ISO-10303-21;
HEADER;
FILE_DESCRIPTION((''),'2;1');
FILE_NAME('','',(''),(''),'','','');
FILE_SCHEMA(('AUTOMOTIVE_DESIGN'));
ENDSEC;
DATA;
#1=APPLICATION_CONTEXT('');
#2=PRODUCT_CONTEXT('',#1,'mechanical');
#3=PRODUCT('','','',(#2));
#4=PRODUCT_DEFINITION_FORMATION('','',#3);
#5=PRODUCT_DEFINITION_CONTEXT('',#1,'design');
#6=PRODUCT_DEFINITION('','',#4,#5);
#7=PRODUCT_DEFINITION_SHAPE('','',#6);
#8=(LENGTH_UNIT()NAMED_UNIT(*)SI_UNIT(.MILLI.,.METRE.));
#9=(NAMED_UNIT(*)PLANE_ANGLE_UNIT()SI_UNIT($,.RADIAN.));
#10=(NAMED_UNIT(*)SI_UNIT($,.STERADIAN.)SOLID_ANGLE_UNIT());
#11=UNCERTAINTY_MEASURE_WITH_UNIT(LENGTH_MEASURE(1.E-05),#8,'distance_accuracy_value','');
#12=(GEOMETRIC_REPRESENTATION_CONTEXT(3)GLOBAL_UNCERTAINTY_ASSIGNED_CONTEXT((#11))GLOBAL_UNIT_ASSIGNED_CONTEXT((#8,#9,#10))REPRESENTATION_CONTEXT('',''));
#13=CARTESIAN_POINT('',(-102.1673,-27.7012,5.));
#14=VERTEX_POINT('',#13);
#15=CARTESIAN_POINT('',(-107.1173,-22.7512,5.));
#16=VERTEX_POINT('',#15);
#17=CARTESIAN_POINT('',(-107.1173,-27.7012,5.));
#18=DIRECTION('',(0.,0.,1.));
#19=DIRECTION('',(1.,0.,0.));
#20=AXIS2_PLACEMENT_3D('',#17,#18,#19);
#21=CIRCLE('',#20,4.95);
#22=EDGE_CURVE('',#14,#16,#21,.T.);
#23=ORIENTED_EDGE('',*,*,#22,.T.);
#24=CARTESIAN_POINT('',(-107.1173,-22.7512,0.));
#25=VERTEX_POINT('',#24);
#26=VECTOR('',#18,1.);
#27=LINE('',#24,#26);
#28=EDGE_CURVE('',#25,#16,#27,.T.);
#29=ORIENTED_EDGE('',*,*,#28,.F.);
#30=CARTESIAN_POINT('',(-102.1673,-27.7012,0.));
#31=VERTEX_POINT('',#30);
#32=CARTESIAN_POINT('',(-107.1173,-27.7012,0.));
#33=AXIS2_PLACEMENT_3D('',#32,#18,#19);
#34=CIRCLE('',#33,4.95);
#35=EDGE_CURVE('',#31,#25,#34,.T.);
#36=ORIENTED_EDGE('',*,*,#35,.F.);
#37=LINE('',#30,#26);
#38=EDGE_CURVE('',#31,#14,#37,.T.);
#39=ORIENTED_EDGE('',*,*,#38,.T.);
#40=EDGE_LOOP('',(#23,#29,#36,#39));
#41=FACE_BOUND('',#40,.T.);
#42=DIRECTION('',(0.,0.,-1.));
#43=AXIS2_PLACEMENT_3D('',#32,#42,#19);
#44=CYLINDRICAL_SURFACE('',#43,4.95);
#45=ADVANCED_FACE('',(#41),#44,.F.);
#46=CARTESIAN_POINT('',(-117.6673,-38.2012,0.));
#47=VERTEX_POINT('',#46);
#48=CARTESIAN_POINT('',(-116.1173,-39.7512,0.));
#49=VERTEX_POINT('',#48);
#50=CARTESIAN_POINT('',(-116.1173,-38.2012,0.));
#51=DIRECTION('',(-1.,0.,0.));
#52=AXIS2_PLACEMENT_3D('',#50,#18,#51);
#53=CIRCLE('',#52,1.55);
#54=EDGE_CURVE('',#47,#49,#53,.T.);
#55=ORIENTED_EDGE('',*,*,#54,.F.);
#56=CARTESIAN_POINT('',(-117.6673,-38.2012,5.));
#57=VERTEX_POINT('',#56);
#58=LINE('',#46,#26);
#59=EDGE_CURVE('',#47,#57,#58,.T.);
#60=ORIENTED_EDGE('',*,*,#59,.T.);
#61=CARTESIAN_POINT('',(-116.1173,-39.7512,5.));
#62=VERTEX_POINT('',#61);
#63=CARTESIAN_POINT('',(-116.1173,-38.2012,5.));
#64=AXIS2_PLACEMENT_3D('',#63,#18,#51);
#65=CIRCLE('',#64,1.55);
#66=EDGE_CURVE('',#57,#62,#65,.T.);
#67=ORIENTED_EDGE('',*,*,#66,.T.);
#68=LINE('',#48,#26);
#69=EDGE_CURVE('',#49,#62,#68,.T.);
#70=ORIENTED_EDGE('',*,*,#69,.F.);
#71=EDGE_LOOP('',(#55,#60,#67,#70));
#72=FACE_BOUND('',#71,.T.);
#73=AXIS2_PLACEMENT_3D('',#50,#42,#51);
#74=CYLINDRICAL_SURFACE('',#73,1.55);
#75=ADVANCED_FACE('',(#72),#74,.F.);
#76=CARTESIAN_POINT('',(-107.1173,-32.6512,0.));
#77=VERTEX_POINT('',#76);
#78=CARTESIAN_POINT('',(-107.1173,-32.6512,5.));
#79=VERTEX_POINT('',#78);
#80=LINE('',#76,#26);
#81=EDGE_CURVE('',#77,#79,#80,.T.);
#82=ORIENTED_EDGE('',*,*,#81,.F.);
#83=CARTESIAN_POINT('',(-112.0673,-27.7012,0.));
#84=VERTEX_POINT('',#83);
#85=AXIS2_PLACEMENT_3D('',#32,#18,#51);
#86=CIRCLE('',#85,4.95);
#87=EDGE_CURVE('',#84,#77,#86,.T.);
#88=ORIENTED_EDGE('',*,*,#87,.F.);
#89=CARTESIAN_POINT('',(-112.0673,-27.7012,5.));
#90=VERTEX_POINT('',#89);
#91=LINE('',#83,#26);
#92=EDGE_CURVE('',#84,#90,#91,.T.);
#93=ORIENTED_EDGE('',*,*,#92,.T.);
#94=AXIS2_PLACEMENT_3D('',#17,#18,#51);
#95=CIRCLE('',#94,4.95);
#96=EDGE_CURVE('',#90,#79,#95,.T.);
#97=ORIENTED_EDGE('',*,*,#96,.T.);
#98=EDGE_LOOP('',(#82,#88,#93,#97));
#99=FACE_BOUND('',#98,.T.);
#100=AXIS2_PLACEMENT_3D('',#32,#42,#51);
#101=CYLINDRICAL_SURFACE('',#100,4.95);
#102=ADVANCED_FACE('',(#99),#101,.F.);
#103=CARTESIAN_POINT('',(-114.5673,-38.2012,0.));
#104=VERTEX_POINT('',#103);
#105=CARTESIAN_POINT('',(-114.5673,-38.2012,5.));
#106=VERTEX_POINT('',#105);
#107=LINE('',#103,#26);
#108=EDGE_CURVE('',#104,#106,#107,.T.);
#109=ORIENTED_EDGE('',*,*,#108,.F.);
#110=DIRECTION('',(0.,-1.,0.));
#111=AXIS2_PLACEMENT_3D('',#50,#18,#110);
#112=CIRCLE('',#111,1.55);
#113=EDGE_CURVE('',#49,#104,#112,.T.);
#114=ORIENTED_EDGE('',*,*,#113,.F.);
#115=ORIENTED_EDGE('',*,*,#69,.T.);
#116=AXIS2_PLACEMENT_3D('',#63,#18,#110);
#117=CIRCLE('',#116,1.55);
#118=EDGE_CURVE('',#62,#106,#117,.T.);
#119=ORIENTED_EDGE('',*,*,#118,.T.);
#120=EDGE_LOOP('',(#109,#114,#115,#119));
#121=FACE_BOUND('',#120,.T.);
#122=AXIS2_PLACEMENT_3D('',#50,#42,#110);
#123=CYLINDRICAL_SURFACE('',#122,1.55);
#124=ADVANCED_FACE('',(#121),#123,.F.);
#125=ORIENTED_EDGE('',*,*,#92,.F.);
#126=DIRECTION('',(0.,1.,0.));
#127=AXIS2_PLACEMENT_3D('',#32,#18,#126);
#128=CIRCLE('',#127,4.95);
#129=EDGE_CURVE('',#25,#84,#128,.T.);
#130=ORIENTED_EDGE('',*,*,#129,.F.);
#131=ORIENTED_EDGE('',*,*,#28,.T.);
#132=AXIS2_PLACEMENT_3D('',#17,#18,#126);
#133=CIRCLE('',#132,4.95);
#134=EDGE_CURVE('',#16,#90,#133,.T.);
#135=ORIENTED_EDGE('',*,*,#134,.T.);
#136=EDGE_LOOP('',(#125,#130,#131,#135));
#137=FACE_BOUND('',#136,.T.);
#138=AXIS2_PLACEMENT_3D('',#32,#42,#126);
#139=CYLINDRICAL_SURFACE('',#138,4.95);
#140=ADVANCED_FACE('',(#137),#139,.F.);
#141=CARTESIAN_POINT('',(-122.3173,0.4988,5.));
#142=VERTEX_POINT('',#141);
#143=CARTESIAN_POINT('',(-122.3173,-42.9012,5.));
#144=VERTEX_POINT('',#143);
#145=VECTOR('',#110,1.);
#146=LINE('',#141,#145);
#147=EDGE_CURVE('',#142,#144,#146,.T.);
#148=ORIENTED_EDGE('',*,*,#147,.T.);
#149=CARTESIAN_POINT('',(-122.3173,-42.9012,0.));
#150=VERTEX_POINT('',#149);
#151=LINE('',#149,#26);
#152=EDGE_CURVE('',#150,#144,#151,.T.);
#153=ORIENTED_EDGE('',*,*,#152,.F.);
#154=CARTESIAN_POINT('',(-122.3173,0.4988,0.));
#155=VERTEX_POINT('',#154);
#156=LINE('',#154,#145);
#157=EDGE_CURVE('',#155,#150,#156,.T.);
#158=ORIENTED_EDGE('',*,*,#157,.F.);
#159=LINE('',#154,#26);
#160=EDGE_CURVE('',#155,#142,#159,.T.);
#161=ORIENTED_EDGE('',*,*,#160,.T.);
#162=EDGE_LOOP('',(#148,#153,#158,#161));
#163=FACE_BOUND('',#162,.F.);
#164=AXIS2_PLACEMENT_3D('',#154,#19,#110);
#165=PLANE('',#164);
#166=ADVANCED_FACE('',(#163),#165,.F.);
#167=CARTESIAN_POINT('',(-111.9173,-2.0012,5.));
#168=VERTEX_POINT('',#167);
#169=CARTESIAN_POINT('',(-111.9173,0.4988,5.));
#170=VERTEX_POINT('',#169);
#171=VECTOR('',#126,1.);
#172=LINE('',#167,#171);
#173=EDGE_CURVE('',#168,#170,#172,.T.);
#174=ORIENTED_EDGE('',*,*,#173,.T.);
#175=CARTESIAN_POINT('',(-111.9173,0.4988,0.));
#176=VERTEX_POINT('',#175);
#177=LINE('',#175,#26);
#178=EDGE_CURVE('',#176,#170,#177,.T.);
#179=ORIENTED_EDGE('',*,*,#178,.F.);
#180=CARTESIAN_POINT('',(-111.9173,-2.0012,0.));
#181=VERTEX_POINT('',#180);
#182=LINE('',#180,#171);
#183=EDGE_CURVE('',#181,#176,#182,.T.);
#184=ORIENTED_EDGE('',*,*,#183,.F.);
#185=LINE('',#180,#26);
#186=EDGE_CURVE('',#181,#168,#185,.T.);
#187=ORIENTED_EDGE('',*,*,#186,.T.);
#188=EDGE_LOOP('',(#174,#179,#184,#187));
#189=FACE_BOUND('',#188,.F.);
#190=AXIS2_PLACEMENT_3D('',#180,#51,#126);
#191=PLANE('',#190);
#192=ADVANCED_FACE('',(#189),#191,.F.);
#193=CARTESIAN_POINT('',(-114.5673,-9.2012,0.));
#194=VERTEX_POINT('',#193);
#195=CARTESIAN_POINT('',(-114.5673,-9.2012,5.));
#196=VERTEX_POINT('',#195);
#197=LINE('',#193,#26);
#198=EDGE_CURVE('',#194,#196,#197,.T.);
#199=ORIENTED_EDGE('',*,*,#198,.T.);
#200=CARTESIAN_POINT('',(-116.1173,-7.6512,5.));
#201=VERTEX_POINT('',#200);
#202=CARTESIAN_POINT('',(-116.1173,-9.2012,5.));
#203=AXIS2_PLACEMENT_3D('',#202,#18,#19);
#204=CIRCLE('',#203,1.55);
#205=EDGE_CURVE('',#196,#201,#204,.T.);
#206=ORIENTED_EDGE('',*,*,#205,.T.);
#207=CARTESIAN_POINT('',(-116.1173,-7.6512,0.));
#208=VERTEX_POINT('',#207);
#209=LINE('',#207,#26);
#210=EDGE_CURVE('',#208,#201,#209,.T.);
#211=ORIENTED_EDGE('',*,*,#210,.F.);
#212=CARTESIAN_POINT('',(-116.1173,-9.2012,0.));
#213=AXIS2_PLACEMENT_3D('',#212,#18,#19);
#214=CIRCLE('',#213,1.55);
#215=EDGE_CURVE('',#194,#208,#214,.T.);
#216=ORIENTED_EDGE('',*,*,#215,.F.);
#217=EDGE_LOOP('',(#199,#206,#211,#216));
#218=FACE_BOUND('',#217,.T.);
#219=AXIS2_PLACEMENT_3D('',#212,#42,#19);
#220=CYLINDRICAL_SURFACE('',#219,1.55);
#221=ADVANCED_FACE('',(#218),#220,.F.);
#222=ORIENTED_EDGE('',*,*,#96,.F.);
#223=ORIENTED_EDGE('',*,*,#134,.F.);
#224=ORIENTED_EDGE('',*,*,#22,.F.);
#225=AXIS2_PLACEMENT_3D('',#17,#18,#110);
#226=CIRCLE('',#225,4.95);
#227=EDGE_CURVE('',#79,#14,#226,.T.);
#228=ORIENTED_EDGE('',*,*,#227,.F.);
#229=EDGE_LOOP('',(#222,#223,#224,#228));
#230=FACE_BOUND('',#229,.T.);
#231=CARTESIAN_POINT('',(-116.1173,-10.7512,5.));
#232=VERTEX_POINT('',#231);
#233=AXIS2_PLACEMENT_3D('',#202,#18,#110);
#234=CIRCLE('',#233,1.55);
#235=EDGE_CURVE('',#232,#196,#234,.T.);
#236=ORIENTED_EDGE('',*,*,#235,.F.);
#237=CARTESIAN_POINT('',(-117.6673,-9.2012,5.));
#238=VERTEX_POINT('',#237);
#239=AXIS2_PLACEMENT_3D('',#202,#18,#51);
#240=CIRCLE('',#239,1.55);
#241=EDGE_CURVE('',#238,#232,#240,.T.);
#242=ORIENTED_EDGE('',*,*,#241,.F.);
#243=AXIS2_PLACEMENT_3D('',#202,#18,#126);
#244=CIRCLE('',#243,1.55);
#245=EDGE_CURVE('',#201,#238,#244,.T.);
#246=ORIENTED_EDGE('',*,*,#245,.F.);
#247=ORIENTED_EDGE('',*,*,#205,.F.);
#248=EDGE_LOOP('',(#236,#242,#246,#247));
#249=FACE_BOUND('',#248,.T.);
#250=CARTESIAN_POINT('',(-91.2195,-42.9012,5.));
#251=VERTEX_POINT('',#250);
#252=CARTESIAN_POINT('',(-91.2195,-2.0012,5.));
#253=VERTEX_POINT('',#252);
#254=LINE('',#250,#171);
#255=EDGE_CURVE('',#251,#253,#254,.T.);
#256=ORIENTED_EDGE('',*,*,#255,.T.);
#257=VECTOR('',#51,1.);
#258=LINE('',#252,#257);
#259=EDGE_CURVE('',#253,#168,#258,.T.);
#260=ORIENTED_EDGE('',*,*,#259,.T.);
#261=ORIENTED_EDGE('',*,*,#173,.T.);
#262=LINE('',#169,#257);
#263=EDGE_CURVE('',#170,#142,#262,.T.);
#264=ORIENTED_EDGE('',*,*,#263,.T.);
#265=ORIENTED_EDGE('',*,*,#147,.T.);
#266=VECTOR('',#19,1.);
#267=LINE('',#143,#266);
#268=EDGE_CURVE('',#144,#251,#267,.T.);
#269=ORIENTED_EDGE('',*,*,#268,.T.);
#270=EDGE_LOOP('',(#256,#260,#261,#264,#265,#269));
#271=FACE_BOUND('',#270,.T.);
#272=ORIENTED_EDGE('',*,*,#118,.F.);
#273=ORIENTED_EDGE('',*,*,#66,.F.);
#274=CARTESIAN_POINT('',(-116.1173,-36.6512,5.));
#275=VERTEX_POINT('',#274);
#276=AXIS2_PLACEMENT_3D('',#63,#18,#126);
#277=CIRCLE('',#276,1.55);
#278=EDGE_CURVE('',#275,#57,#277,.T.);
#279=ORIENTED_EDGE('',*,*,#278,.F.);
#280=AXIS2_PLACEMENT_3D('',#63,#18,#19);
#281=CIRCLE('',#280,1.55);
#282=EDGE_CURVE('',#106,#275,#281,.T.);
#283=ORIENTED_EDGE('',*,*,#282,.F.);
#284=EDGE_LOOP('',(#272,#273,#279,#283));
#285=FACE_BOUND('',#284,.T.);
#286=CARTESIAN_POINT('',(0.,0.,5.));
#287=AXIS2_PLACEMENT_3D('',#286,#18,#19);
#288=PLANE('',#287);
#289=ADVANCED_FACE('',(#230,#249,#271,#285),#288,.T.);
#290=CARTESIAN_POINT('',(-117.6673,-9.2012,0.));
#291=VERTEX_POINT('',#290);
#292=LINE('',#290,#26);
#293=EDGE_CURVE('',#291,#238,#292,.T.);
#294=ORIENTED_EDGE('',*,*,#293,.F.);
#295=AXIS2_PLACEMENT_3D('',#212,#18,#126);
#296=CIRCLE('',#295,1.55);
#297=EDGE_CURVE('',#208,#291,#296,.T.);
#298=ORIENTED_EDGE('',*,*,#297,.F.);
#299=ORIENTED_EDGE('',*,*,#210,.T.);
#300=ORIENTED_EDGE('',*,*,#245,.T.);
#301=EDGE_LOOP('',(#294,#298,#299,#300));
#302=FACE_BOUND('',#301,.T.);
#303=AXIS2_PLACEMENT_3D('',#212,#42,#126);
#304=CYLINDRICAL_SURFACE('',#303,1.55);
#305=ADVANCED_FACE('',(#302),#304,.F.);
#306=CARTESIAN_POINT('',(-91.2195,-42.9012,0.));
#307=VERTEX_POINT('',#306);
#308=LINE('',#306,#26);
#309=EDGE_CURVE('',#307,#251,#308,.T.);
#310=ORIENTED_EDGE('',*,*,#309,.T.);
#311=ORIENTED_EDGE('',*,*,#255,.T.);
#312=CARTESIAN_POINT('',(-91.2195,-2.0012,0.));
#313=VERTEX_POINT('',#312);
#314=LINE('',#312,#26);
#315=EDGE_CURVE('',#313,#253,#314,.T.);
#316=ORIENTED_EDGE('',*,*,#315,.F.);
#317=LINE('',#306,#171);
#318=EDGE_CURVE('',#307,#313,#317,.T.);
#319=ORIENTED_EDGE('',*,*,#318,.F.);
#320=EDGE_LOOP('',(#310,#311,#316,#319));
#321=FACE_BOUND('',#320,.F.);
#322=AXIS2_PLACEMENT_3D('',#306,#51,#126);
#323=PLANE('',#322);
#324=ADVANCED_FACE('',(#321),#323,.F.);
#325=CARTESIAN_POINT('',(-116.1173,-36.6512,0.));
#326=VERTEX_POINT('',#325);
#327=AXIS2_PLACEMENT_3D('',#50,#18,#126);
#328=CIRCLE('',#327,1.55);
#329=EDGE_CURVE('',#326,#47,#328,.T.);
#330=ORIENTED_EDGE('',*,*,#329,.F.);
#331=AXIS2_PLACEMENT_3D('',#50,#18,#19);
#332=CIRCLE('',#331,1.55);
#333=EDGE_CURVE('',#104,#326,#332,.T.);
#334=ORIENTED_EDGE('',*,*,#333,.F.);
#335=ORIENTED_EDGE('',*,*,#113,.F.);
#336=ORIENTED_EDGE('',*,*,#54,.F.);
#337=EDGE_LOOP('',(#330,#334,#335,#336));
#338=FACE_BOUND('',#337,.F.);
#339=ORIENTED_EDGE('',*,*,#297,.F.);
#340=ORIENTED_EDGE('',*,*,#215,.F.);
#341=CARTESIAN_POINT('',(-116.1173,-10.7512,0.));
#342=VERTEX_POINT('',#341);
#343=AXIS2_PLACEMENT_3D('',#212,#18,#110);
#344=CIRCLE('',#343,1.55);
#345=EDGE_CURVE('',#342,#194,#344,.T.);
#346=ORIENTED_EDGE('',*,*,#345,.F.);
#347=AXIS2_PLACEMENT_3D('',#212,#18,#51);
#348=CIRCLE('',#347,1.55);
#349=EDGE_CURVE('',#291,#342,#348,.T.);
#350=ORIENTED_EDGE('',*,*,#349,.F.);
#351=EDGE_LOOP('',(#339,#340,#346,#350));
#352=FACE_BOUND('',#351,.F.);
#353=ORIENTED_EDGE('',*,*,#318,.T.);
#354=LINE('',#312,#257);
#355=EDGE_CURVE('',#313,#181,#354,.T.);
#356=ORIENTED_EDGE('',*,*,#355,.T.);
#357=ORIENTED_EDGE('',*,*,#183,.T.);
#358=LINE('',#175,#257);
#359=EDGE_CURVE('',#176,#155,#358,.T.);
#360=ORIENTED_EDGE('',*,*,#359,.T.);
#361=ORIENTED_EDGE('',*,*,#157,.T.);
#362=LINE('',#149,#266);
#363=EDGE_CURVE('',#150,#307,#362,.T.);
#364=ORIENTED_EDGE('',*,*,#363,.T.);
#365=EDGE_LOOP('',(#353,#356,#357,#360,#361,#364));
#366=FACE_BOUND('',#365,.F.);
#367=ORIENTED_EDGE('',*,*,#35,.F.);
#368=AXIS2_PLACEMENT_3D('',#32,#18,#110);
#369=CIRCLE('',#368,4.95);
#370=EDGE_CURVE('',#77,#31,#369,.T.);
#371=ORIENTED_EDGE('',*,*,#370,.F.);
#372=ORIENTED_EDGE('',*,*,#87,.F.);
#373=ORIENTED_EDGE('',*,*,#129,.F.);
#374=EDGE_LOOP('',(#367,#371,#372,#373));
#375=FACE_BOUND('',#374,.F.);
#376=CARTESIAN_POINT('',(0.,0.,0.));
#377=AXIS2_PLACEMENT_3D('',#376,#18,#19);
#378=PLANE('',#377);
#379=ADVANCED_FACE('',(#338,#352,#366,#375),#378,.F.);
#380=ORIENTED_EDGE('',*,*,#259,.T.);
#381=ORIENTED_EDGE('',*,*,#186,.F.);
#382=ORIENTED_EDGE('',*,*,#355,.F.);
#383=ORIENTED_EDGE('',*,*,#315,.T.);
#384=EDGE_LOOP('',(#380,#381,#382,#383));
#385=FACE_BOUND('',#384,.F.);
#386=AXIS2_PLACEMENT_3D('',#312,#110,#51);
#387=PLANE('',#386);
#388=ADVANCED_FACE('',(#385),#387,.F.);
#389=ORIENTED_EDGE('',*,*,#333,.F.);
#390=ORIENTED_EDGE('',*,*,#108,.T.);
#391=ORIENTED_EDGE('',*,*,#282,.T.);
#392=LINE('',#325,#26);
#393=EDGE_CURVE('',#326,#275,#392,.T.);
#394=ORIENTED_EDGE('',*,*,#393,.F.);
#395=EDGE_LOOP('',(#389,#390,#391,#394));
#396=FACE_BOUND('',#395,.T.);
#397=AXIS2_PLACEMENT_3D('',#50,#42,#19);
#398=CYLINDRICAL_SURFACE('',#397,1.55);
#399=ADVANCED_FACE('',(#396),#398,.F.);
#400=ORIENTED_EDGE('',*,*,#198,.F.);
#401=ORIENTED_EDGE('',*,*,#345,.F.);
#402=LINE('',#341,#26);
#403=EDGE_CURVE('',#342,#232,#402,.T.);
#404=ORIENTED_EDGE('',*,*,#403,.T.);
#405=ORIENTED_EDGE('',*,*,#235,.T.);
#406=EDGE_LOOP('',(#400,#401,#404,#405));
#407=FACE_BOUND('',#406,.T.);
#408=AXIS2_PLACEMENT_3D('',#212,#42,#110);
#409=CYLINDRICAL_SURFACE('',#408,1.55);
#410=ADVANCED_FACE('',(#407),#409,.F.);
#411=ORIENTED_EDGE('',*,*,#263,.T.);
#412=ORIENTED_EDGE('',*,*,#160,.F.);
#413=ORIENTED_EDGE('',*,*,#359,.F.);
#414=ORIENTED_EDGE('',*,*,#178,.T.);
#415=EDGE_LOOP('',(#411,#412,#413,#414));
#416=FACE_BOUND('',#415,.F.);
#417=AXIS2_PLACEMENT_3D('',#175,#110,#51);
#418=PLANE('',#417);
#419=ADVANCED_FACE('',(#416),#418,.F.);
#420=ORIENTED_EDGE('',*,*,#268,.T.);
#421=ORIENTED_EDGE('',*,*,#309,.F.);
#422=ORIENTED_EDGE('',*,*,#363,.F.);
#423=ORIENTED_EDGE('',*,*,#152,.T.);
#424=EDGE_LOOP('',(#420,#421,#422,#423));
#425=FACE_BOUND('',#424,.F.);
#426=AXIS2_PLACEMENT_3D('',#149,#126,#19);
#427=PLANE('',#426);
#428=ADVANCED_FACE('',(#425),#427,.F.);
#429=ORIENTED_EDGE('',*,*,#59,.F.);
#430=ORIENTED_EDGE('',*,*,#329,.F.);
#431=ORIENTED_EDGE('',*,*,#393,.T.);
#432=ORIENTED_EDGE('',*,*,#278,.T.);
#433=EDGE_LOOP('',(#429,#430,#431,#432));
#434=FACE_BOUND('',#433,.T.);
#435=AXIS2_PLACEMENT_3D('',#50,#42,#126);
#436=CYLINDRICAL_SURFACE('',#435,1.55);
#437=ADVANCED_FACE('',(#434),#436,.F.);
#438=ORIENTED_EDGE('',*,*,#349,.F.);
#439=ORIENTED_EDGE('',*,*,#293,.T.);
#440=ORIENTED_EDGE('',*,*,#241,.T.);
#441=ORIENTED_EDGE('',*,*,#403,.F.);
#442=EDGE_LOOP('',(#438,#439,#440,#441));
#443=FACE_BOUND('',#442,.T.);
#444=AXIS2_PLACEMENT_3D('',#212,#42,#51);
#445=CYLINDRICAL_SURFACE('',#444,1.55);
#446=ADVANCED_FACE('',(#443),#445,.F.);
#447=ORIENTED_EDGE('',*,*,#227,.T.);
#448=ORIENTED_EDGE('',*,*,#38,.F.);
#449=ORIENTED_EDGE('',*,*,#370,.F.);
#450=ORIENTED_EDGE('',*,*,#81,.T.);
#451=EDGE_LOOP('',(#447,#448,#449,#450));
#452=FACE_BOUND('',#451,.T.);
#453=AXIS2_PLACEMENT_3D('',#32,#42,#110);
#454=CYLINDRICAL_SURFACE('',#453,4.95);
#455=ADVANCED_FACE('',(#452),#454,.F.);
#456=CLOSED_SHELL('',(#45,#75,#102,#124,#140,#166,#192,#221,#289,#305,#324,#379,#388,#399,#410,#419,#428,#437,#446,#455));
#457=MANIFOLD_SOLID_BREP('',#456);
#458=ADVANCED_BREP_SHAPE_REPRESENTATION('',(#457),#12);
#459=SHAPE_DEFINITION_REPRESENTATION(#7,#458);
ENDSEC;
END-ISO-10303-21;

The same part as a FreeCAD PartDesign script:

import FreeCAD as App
import Part
import Sketcher

V = App.Vector
Q = App.Units.Quantity

doc = App.newDocument("Part")
body = doc.addObject("PartDesign::Body", "Body")

sketch1 = body.newObject("Sketcher::SketchObject", "Sketch")
sketch1.AttachmentSupport = (doc.getObject("XY_Plane"), [""])
sketch1.MapMode = "FlatFace"
sketch1.addGeometry(Part.LineSegment(V(-91.2, -42.9, 0), V(-91.2, -2, 0)), False)
sketch1.addGeometry(Part.LineSegment(V(-91.2, -2, 0), V(-111.9, -2, 0)), False)
sketch1.addGeometry(Part.LineSegment(V(-111.9, -2, 0), V(-111.9, 0.5, 0)), False)
sketch1.addGeometry(Part.LineSegment(V(-111.9, 0.5, 0), V(-122.3, 0.5, 0)), False)
sketch1.addGeometry(Part.LineSegment(V(-122.3, 0.5, 0), V(-122.3, -42.9, 0)), False)
sketch1.addGeometry(Part.LineSegment(V(-122.3, -42.9, 0), V(-91.2, -42.9, 0)), False)
sketch1.addGeometry(Part.Circle(V(-116.1, -38.2, 0), V(0, 0, 1), 1.5), False)
sketch1.addGeometry(Part.Circle(V(-107.1, -27.7, 0), V(0, 0, 1), 4.9), False)
sketch1.addGeometry(Part.Circle(V(-116.1, -9.2, 0), V(0, 0, 1), 1.5), False)
sketch1.addConstraint(Sketcher.Constraint("Coincident", 0, 2, 1, 1))
sketch1.addConstraint(Sketcher.Constraint("Coincident", 1, 2, 2, 1))
sketch1.addConstraint(Sketcher.Constraint("Coincident", 2, 2, 3, 1))
sketch1.addConstraint(Sketcher.Constraint("Coincident", 3, 2, 4, 1))
sketch1.addConstraint(Sketcher.Constraint("Coincident", 4, 2, 5, 1))
sketch1.addConstraint(Sketcher.Constraint("Coincident", 5, 2, 0, 1))
sketch1.addConstraint(Sketcher.Constraint("Vertical", 0))
sketch1.addConstraint(Sketcher.Constraint("Horizontal", 1))
sketch1.addConstraint(Sketcher.Constraint("Vertical", 2))
sketch1.addConstraint(Sketcher.Constraint("Horizontal", 3))
sketch1.addConstraint(Sketcher.Constraint("Vertical", 4))
sketch1.addConstraint(Sketcher.Constraint("Horizontal", 5))
sketch1.addConstraint(Sketcher.Constraint("Equal", 6, 8))
sketch1.addConstraint(Sketcher.Constraint("Vertical", 6, 3, 8, 3))
sketch1.addConstraint(Sketcher.Constraint("Diameter", 6, Q("3.1 mm")))
sketch1.addConstraint(Sketcher.Constraint("Diameter", 7, Q("9.9 mm")))
sketch1.addConstraint(Sketcher.Constraint("DistanceX", 3, 2, 3, 1, Q("10.4 mm")))
sketch1.addConstraint(Sketcher.Constraint("DistanceY", 0, 1, 0, 2, Q("40.9 mm")))
sketch1.addConstraint(Sketcher.Constraint("DistanceY", 2, 1, 2, 2, Q("2.5 mm")))
sketch1.addConstraint(Sketcher.Constraint("DistanceX", 6, 3, 7, 3, Q("9 mm")))
sketch1.addConstraint(Sketcher.Constraint("DistanceY", 6, 3, 8, 3, Q("29 mm")))
sketch1.addConstraint(Sketcher.Constraint("DistanceY", 6, 3, 7, 3, Q("10.5 mm")))
sketch1.addConstraint(Sketcher.Constraint("DistanceY", 8, 3, 0, 2, Q("7.2 mm")))
sketch1.addConstraint(Sketcher.Constraint("DistanceX", 8, 3, 1, 2, Q("4.2 mm")))
sketch1.addConstraint(Sketcher.Constraint("DistanceX", 1, 2, 1, 1, Q("20.6978 mm")))
sketch1.addConstraint(Sketcher.Constraint("DistanceX", 6, 3, -1, 1, Q("116.1173 mm")))
sketch1.addConstraint(Sketcher.Constraint("DistanceY", 6, 3, -1, 1, Q("38.2012 mm")))
pad1 = body.newObject("PartDesign::Pad", "Pad")
pad1.Profile = sketch1
pad1.Length = 5

doc.recompute()
